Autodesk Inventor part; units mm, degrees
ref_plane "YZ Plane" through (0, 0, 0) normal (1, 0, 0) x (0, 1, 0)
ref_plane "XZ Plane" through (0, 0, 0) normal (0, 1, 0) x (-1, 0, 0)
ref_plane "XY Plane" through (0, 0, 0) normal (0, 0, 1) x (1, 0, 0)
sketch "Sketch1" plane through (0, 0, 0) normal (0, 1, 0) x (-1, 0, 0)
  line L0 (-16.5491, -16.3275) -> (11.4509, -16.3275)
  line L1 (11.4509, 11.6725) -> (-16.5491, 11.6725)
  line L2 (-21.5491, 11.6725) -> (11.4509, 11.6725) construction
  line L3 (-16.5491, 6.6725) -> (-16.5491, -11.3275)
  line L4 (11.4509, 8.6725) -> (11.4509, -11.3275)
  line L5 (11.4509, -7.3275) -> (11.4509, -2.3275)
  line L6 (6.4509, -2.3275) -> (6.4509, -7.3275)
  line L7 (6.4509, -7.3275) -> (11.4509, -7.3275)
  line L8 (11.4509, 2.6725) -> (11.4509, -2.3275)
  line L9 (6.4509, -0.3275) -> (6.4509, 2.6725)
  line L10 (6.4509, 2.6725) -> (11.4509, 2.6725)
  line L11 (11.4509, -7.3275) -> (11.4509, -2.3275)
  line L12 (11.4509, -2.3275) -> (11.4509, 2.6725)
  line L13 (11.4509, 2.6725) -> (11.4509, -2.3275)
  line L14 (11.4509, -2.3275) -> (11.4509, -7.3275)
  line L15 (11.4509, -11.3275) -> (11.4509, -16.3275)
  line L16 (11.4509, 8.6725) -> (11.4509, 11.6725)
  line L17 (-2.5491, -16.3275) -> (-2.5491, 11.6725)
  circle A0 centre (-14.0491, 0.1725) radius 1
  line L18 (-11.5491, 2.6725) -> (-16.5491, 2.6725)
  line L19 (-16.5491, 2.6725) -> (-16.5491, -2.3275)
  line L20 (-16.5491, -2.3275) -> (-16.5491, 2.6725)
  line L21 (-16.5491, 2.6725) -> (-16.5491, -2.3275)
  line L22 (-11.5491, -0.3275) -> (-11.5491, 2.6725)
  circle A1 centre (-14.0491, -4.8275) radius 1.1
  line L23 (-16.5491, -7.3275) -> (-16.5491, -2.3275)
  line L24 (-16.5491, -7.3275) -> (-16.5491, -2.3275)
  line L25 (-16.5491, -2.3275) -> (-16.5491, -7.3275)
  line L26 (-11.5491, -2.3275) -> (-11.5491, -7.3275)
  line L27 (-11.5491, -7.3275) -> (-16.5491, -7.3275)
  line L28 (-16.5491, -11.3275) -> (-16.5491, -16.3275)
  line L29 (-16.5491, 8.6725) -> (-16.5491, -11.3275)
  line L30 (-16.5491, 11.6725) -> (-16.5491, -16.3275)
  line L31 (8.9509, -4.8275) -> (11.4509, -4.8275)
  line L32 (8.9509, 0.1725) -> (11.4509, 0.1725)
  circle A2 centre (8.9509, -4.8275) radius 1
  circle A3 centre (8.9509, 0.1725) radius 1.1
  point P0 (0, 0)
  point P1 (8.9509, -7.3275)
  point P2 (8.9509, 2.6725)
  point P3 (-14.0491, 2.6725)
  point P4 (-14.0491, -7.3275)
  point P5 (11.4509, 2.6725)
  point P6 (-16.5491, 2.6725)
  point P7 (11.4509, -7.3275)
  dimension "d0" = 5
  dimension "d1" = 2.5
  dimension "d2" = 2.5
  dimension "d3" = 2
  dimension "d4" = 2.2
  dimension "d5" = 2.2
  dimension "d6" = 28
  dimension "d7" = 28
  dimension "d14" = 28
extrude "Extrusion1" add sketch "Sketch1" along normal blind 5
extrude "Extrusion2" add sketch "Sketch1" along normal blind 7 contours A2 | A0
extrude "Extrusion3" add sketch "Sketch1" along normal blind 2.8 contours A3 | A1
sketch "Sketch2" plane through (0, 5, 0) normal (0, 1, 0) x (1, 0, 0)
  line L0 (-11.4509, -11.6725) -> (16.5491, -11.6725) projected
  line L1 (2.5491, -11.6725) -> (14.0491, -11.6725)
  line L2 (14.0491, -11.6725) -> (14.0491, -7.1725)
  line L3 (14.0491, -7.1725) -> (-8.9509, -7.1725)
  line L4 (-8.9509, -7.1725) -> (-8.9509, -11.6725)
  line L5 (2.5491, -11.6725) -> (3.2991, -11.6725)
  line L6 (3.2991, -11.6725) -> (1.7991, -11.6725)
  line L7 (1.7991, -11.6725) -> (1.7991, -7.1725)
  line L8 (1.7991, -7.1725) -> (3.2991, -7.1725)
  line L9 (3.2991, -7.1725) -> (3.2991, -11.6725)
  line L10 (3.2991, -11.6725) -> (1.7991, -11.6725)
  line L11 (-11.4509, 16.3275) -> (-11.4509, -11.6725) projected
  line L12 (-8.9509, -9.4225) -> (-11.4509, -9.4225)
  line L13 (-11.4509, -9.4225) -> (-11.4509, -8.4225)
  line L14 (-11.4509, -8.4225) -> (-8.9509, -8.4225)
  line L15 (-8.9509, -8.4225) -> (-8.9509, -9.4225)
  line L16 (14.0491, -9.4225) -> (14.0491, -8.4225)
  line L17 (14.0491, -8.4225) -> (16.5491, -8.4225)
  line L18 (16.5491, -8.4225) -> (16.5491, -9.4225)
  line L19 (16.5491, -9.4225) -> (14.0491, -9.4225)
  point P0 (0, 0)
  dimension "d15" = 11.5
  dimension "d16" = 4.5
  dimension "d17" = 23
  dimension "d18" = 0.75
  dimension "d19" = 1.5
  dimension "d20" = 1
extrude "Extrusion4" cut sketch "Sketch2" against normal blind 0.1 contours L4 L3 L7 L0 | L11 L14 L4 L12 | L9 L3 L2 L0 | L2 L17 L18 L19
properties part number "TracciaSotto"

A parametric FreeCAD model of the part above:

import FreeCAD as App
import Part
import Sketcher
from FreeCAD import Vector


def add_polygon(sketch, points):
    """Adds a closed chain of lines whose ends are joined by coincident constraints."""
    first, n = sketch.GeometryCount, len(points)
    for a, b in zip(points, points[1:] + points[:1]):
        sketch.addGeometry(Part.LineSegment(App.Vector(*a, 0), App.Vector(*b, 0)), False)
    for i in range(n):
        sketch.addConstraint(Sketcher.Constraint("Coincident", first + i, 2, first + (i + 1) % n, 1))

doc = App.newDocument("Part")
body = doc.addObject("PartDesign::Body", "Body")

# Sketch on XZ plane
sketch1 = body.newObject("Sketcher::SketchObject", "Sketch")
sketch1.AttachmentSupport = (doc.getObject("XZ_Plane"), [""])
sketch1.MapMode = "FlatFace"
add_polygon(sketch1, [(16.5, -16.3), (-11.5, -16.3), (-11.5, -4.8), (-11.5, 0.2), (-11.5, 11.7), (16.5, 11.7)])  # lines 0-5
sketch1.addGeometry(Part.Circle(Vector(14, -4.8, 0), Vector(0, 0, 1), 1.1), False)  # 6
sketch1.addGeometry(Part.Circle(Vector(14, 0.2, 0), Vector(0, 0, 1), 1), False)  # 7
sketch1.addGeometry(Part.Circle(Vector(-9, -4.8, 0), Vector(0, 0, 1), 1), False)  # 8
sketch1.addGeometry(Part.Circle(Vector(-9, 0.2, 0), Vector(0, 0, 1), 1.1), False)  # 9
sketch1.addConstraint(Sketcher.Constraint("Horizontal", 0))
sketch1.addConstraint(Sketcher.Constraint("Vertical", 1))
sketch1.addConstraint(Sketcher.Constraint("Vertical", 2))
sketch1.addConstraint(Sketcher.Constraint("Vertical", 3))
sketch1.addConstraint(Sketcher.Constraint("Horizontal", 4))
sketch1.addConstraint(Sketcher.Constraint("Vertical", 5))
sketch1.addConstraint(Sketcher.Constraint("Equal", 7, 8))
sketch1.addConstraint(Sketcher.Constraint("Equal", 6, 9))
sketch1.addConstraint(Sketcher.Constraint("Horizontal", 6, 3, 8, 3))
sketch1.addConstraint(Sketcher.Constraint("Horizontal", 7, 3, 9, 3))
sketch1.addConstraint(Sketcher.Constraint("Horizontal", 8, 3, 1, 2))
sketch1.addConstraint(Sketcher.Constraint("Horizontal", 9, 3, 2, 2))
sketch1.addConstraint(Sketcher.Constraint("Vertical", 6, 3, 7, 3))
sketch1.addConstraint(Sketcher.Constraint("Vertical", 8, 3, 9, 3))
sketch1.addConstraint(Sketcher.Constraint("Equal", 1, 3))
sketch1.addConstraint(Sketcher.Constraint("Equal", 4, 5))
sketch1.addConstraint(Sketcher.Constraint("Diameter", 7, 2.0))
sketch1.addConstraint(Sketcher.Constraint("Diameter", 6, 2.2))
sketch1.addConstraint(Sketcher.Constraint("DistanceX", 0, 2, 0, 1, 28.0))
sketch1.addConstraint(Sketcher.Constraint("DistanceY", 2, 1, 2, 2, 5.0))
sketch1.addConstraint(Sketcher.Constraint("DistanceX", 0, 2, 8, 3, 2.5))
sketch1.addConstraint(Sketcher.Constraint("DistanceX", 7, 3, 4, 2, 2.5))
sketch1.addConstraint(Sketcher.Constraint("DistanceX", -1, 1, 6, 3, 14.049))
sketch1.addConstraint(Sketcher.Constraint("DistanceY", 6, 3, -1, 1, 4.8275))
pad1 = body.newObject("PartDesign::Pad", "Pad")
pad1.Profile = sketch1
pad1.Length = 5
pad1.Reversed = True

# Sketch on XZ plane
sketch2 = body.newObject("Sketcher::SketchObject", "Sketch001")
sketch2.AttachmentSupport = (doc.getObject("XZ_Plane"), [""])
sketch2.MapMode = "FlatFace"
sketch2.addGeometry(Part.Circle(Vector(-9, -4.8, 0), Vector(0, 0, 1), 1), False)
sketch2.addGeometry(Part.Circle(Vector(14, 0.2, 0), Vector(0, 0, 1), 1), False)
sketch2.addConstraint(Sketcher.Constraint("Equal", 0, 1))
sketch2.addConstraint(Sketcher.Constraint("Diameter", 0, 2.0))
sketch2.addConstraint(Sketcher.Constraint("DistanceY", 0, 3, 1, 3, 5.0))
sketch2.addConstraint(Sketcher.Constraint("DistanceX", 0, 3, 1, 3, 23.0))
sketch2.addConstraint(Sketcher.Constraint("DistanceX", 0, 3, -1, 1, 8.951))
sketch2.addConstraint(Sketcher.Constraint("DistanceY", 0, 3, -1, 1, 4.8275))
pad2 = body.newObject("PartDesign::Pad", "Pad001")
pad2.Profile = sketch2
pad2.Length = 7
pad2.Reversed = True

# Sketch on XZ plane
sketch3 = body.newObject("Sketcher::SketchObject", "Sketch002")
sketch3.AttachmentSupport = (doc.getObject("XZ_Plane"), [""])
sketch3.MapMode = "FlatFace"
sketch3.addGeometry(Part.Circle(Vector(-9, 0.2, 0), Vector(0, 0, 1), 1.1), False)
sketch3.addGeometry(Part.Circle(Vector(14, -4.8, 0), Vector(0, 0, 1), 1.1), False)
sketch3.addConstraint(Sketcher.Constraint("Equal", 0, 1))
sketch3.addConstraint(Sketcher.Constraint("Diameter", 0, 2.2))
sketch3.addConstraint(Sketcher.Constraint("DistanceY", 1, 3, 0, 3, 5.0))
sketch3.addConstraint(Sketcher.Constraint("DistanceX", 0, 3, 1, 3, 23.0))
sketch3.addConstraint(Sketcher.Constraint("DistanceX", 0, 3, -1, 1, 8.951))
sketch3.addConstraint(Sketcher.Constraint("DistanceY", -1, 1, 0, 3, 0.1725))
pad3 = body.newObject("PartDesign::Pad", "Pad002")
pad3.Profile = sketch3
pad3.Length = 2.8
pad3.Reversed = True

# Sketch on XZ plane
sketch4 = body.newObject("Sketcher::SketchObject", "Sketch003")
sketch4.AttachmentSupport = (doc.getObject("XZ_Plane"), [""])
sketch4.MapMode = "FlatFace"
sketch4.AttachmentOffset = App.Placement(Vector(0, 0, -5), App.Rotation())
add_polygon(sketch4, [(-9, 9.4), (-9, 11.7), (1.8, 11.7), (1.8, 7.2), (-9, 7.2), (-9, 8.4), (-11.5, 8.4), (-11.5, 9.4)])  # lines 0-7
add_polygon(sketch4, [(3.3, 7.2), (3.3, 11.7), (14, 11.7), (14, 9.4), (16.5, 9.4), (16.5, 8.4), (14, 8.4), (14, 7.2)])  # lines 8-15
sketch4.addConstraint(Sketcher.Constraint("Vertical", 0))
sketch4.addConstraint(Sketcher.Constraint("Horizontal", 1))
sketch4.addConstraint(Sketcher.Constraint("Vertical", 2))
sketch4.addConstraint(Sketcher.Constraint("Horizontal", 3))
sketch4.addConstraint(Sketcher.Constraint("Vertical", 4))
sketch4.addConstraint(Sketcher.Constraint("Horizontal", 5))
sketch4.addConstraint(Sketcher.Constraint("Vertical", 6))
sketch4.addConstraint(Sketcher.Constraint("Horizontal", 7))
sketch4.addConstraint(Sketcher.Constraint("Vertical", 8))
sketch4.addConstraint(Sketcher.Constraint("Horizontal", 9))
sketch4.addConstraint(Sketcher.Constraint("Vertical", 10))
sketch4.addConstraint(Sketcher.Constraint("Horizontal", 11))
sketch4.addConstraint(Sketcher.Constraint("Vertical", 12))
sketch4.addConstraint(Sketcher.Constraint("Horizontal", 13))
sketch4.addConstraint(Sketcher.Constraint("Vertical", 14))
sketch4.addConstraint(Sketcher.Constraint("Horizontal", 15))
sketch4.addConstraint(Sketcher.Constraint("Horizontal", 1, 2, 8, 2))
sketch4.addConstraint(Sketcher.Constraint("Horizontal", 7, 2, 10, 2))
sketch4.addConstraint(Sketcher.Constraint("Horizontal", 5, 2, 12, 2))
sketch4.addConstraint(Sketcher.Constraint("Horizontal", 3, 2, 14, 2))
sketch4.addConstraint(Sketcher.Constraint("Vertical", 0, 2, 3, 2))
sketch4.addConstraint(Sketcher.Constraint("Vertical", 10, 2, 13, 2))
sketch4.addConstraint(Sketcher.Constraint("Equal", 3, 9))
sketch4.addConstraint(Sketcher.Constraint("Equal", 7, 11))
sketch4.addConstraint(Sketcher.Constraint("DistanceY", 6, 1, 6, 2, 1.0))
sketch4.addConstraint(Sketcher.Constraint("DistanceY", 2, 2, 2, 1, 4.5))
sketch4.addConstraint(Sketcher.Constraint("DistanceX", 0, 2, 9, 2, 23.0))
sketch4.addConstraint(Sketcher.Constraint("DistanceX", 1, 2, 8, 2, 1.5))
sketch4.addConstraint(Sketcher.Constraint("DistanceX", 5, 2, 5, 1, 2.5))
sketch4.addConstraint(Sketcher.Constraint("DistanceY", 0, 1, 0, 2, 2.25))
sketch4.addConstraint(Sketcher.Constraint("DistanceX", 0, 2, -1, 1, 8.951))
sketch4.addConstraint(Sketcher.Constraint("DistanceY", -1, 1, 0, 2, 11.6725))
pocket1 = body.newObject("PartDesign::Pocket", "Pocket")
pocket1.Profile = sketch4
pocket1.Length = 0.1
pocket1.Reversed = True

doc.recompute()
